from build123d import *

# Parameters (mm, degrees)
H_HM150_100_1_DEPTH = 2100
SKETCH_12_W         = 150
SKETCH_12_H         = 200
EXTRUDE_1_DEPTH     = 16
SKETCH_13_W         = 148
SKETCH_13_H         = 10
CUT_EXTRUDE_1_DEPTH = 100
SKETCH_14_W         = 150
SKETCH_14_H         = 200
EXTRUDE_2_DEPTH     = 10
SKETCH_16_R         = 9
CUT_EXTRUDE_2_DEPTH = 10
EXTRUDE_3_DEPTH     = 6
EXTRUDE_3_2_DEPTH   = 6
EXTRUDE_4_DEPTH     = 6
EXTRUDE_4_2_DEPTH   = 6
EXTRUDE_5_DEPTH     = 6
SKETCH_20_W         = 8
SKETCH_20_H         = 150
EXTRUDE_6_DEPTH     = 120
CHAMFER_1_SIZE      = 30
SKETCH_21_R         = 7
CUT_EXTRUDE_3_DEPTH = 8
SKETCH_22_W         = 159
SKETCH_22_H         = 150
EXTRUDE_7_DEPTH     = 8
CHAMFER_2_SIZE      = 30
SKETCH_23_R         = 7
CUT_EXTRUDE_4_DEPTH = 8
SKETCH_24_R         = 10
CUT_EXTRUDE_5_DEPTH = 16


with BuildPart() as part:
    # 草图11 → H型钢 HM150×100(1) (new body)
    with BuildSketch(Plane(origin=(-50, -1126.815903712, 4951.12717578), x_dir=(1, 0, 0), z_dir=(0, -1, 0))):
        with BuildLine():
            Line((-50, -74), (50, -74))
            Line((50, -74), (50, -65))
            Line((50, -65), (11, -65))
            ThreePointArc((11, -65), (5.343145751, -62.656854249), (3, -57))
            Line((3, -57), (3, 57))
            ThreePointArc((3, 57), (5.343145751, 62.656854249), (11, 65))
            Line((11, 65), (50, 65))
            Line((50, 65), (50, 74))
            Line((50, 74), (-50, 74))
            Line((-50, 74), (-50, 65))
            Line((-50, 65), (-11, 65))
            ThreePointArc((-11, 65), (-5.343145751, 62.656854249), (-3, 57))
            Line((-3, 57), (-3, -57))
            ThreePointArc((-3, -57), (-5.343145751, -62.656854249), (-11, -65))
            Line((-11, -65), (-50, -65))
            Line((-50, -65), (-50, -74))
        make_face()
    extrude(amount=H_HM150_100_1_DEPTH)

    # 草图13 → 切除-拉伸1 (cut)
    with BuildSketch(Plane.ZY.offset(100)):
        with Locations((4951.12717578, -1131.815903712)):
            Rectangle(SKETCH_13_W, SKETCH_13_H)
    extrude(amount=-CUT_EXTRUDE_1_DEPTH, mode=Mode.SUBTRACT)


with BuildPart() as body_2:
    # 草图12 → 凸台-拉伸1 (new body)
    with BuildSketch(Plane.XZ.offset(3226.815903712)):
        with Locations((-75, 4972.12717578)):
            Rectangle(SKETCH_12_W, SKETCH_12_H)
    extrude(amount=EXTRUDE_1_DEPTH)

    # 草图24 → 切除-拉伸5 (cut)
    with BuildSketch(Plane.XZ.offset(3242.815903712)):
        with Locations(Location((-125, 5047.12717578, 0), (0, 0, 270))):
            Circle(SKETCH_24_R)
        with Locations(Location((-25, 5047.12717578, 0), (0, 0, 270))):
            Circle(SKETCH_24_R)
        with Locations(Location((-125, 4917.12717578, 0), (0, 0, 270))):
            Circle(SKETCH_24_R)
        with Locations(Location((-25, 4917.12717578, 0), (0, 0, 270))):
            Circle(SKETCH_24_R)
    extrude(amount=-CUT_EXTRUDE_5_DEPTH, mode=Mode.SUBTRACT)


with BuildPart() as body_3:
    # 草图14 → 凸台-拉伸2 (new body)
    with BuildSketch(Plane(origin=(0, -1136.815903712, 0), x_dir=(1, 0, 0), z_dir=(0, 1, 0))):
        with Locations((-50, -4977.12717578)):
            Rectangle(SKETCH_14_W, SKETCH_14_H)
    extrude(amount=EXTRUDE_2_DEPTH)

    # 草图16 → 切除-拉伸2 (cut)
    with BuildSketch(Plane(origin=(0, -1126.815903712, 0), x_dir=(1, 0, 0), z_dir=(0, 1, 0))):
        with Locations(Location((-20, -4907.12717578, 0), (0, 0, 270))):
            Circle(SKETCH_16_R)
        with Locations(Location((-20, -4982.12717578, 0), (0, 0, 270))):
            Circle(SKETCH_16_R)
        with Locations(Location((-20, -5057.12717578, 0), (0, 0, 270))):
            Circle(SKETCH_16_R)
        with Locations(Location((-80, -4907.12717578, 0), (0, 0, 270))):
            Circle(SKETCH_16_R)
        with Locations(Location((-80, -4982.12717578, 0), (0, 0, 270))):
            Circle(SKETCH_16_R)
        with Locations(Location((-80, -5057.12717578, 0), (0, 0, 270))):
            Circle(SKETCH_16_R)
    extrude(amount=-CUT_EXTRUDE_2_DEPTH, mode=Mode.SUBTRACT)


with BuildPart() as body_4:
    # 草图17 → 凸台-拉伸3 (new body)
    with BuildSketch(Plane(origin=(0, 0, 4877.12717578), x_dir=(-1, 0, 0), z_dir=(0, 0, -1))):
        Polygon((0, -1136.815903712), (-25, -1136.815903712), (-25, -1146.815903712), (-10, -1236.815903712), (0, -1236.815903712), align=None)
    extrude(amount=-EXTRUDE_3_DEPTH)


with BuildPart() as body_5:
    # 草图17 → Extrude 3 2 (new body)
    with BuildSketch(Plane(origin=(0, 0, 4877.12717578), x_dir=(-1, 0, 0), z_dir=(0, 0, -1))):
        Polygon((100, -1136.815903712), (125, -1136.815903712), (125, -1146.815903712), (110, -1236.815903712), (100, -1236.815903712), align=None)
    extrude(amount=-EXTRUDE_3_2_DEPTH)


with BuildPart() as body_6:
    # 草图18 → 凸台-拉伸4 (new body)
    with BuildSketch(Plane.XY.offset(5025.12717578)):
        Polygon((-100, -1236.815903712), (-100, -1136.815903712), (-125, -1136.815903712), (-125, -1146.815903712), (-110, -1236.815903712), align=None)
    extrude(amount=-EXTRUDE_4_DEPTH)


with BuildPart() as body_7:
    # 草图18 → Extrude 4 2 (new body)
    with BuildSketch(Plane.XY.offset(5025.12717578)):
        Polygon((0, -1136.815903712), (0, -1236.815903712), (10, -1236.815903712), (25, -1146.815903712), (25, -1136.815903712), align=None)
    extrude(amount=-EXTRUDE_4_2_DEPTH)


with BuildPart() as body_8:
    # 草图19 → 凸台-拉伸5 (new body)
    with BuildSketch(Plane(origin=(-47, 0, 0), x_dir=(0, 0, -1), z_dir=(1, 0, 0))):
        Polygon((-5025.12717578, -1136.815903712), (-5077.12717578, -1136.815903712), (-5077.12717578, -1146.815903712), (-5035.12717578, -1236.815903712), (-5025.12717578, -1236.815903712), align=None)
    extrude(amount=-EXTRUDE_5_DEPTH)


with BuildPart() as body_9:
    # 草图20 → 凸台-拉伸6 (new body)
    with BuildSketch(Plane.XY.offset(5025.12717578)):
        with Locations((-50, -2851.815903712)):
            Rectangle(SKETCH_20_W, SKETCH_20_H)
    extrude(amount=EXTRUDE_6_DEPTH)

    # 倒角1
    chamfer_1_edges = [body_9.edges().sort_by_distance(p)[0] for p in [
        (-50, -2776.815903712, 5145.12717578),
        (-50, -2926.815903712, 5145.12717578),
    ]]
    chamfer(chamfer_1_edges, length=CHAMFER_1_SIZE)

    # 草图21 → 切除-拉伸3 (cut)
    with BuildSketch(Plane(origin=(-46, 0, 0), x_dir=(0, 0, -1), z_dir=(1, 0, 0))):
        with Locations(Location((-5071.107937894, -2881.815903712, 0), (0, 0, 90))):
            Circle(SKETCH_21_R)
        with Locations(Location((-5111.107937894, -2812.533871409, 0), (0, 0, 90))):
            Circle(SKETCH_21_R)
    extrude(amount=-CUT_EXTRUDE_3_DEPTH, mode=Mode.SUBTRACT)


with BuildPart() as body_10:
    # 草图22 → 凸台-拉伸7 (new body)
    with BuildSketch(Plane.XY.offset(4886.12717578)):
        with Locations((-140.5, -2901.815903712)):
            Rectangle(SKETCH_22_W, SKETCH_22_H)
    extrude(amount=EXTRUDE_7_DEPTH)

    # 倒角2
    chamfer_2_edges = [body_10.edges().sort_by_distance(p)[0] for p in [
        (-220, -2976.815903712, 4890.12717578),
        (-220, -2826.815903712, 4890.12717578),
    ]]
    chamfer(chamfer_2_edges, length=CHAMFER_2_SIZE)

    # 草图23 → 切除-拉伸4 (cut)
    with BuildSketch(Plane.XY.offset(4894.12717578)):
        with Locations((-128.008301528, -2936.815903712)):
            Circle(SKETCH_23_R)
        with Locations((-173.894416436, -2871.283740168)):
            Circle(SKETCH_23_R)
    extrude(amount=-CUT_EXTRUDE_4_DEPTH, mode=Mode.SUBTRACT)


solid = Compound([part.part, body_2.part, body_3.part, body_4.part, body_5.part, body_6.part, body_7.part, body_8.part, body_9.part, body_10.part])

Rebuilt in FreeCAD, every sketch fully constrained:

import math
import FreeCAD as App
import Part
import Sketcher


def edges_at(feature, points):
    """Names of the edges that pass closest to the given points."""
    edges = feature.Shape.Edges
    near = lambda p: min(range(len(edges)), key=lambda i: edges[i].distToShape(Part.Vertex(*p))[0])
    return sorted({f"Edge{near(p) + 1}" for p in points})

doc = App.newDocument("Part")
body = doc.addObject("PartDesign::Body", "Body")

# Sketch on XZ plane
sketch1 = body.newObject("Sketcher::SketchObject", "Sketch")
sketch1.AttachmentSupport = (doc.getObject("XZ_Plane"), [""])
sketch1.MapMode = "FlatFace"
sketch1.AttachmentOffset = App.Placement(App.Vector(0, 0, 1126.815904), App.Rotation())
sketch1.addGeometry([
    Part.LineSegment(App.Vector(-100, 4877.127176, 0), App.Vector(0, 4877.127176, 0)),  # 0
    Part.LineSegment(App.Vector(0, 4877.127176, 0), App.Vector(0, 4886.127176, 0)),  # 1
    Part.LineSegment(App.Vector(0, 4886.127176, 0), App.Vector(-39, 4886.127176, 0)),  # 2
    Part.ArcOfCircle(Part.Circle(App.Vector(-39, 4894.127176, 0), App.Vector(0, 0, 1), 8), math.radians(-180), math.radians(-90)),  # 3
    Part.LineSegment(App.Vector(-47, 4894.127176, 0), App.Vector(-47, 5008.127176, 0)),  # 4
    Part.ArcOfCircle(Part.Circle(App.Vector(-39, 5008.127176, 0), App.Vector(0, 0, 1), 8), math.radians(90), math.radians(180)),  # 5
    Part.LineSegment(App.Vector(-39, 5016.127176, 0), App.Vector(0, 5016.127176, 0)),  # 6
    Part.LineSegment(App.Vector(0, 5016.127176, 0), App.Vector(0, 5025.127176, 0)),  # 7
    Part.LineSegment(App.Vector(0, 5025.127176, 0), App.Vector(-100, 5025.127176, 0)),  # 8
    Part.LineSegment(App.Vector(-100, 5025.127176, 0), App.Vector(-100, 5016.127176, 0)),  # 9
    Part.LineSegment(App.Vector(-100, 5016.127176, 0), App.Vector(-61, 5016.127176, 0)),  # 10
    Part.ArcOfCircle(Part.Circle(App.Vector(-61, 5008.127176, 0), App.Vector(0, 0, 1), 8), math.radians(0), math.radians(90)),  # 11
    Part.LineSegment(App.Vector(-53, 5008.127176, 0), App.Vector(-53, 4894.127176, 0)),  # 12
    Part.ArcOfCircle(Part.Circle(App.Vector(-61, 4894.127176, 0), App.Vector(0, 0, 1), 8), math.radians(-90), math.radians(0)),  # 13
    Part.LineSegment(App.Vector(-61, 4886.127176, 0), App.Vector(-100, 4886.127176, 0)),  # 14
    Part.LineSegment(App.Vector(-100, 4886.127176, 0), App.Vector(-100, 4877.127176, 0)),  # 15
], False)
sketch1.addConstraint([
    Sketcher.Constraint("Coincident", 0, 2, 1, 1),
    Sketcher.Constraint("Coincident", 1, 2, 2, 1),
    Sketcher.Constraint("Tangent", 2, 2, 3, 2),
    Sketcher.Constraint("Tangent", 3, 1, 4, 1),
    Sketcher.Constraint("Tangent", 4, 2, 5, 2),
    Sketcher.Constraint("Tangent", 5, 1, 6, 1),
    Sketcher.Constraint("Coincident", 6, 2, 7, 1),
    Sketcher.Constraint("Coincident", 7, 2, 8, 1),
    Sketcher.Constraint("Coincident", 8, 2, 9, 1),
    Sketcher.Constraint("Coincident", 9, 2, 10, 1),
    Sketcher.Constraint("Tangent", 10, 2, 11, 2),
    Sketcher.Constraint("Tangent", 11, 1, 12, 1),
    Sketcher.Constraint("Tangent", 12, 2, 13, 2),
    Sketcher.Constraint("Tangent", 13, 1, 14, 1),
    Sketcher.Constraint("Coincident", 14, 2, 15, 1),
    Sketcher.Constraint("Coincident", 15, 2, 0, 1),
    Sketcher.Constraint("Horizontal", 0),
    Sketcher.Constraint("Vertical", 1),
    Sketcher.Constraint("Horizontal", 2),
    Sketcher.Constraint("Vertical", 4),
    Sketcher.Constraint("Horizontal", 6),
    Sketcher.Constraint("Vertical", 7),
    Sketcher.Constraint("Horizontal", 8),
    Sketcher.Constraint("Vertical", 9),
    Sketcher.Constraint("Horizontal", 10),
    Sketcher.Constraint("Vertical", 12),
    Sketcher.Constraint("Horizontal", 14),
    Sketcher.Constraint("Vertical", 15),
    Sketcher.Constraint("Equal", 3, 5),
    Sketcher.Constraint("Equal", 5, 11),
    Sketcher.Constraint("Equal", 11, 13),
    Sketcher.Constraint("PointOnObject", 0, 2, -2),
    Sketcher.Constraint("PointOnObject", 6, 2, -2),
    Sketcher.Constraint("Horizontal", 5, 3, 11, 3),
    Sketcher.Constraint("Horizontal", 3, 3, 13, 3),
    Sketcher.Constraint("Vertical", 9, 2, 14, 2),
    Sketcher.Constraint("Equal", 6, 10),
    Sketcher.Constraint("Equal", 1, 7),
    Sketcher.Constraint("Radius", 3, 8.0),
    Sketcher.Constraint("DistanceX", 0, 1, 0, 2, 100.0),
    Sketcher.Constraint("DistanceX", 2, 2, 2, 1, 39.0),
    Sketcher.Constraint("DistanceY", 1, 1, 1, 2, 9.0),
    Sketcher.Constraint("DistanceY", 4, 1, 4, 2, 114.0),
    Sketcher.Constraint("DistanceY", -1, 1, 3, 3, 4894.127176),
])
pad1 = body.newObject("PartDesign::Pad", "Pad")
pad1.Profile = sketch1
pad1.Length = 2100

# Sketch on YZ plane
sketch2 = body.newObject("Sketcher::SketchObject", "Sketch001")
sketch2.AttachmentSupport = (doc.getObject("YZ_Plane"), [""])
sketch2.MapMode = "FlatFace"
sketch2.AttachmentOffset = App.Placement(App.Vector(0, 0, -100), App.Rotation())
sketch2.addGeometry([
    Part.LineSegment(App.Vector(-1126.815904, 4877.127176, 0), App.Vector(-1136.815904, 4877.127176, 0)),
    Part.LineSegment(App.Vector(-1136.815904, 4877.127176, 0), App.Vector(-1136.815904, 5025.127176, 0)),
    Part.LineSegment(App.Vector(-1136.815904, 5025.127176, 0), App.Vector(-1126.815904, 5025.127176, 0)),
    Part.LineSegment(App.Vector(-1126.815904, 5025.127176, 0), App.Vector(-1126.815904, 4877.127176, 0)),
], False)
sketch2.addConstraint([
    Sketcher.Constraint("Coincident", 0, 2, 1, 1),
    Sketcher.Constraint("Coincident", 1, 2, 2, 1),
    Sketcher.Constraint("Coincident", 2, 2, 3, 1),
    Sketcher.Constraint("Coincident", 3, 2, 0, 1),
    Sketcher.Constraint("Horizontal", 0),
    Sketcher.Constraint("Vertical", 1),
    Sketcher.Constraint("Horizontal", 2),
    Sketcher.Constraint("Vertical", 3),
    Sketcher.Constraint("DistanceX", 0, 2, 0, 1, 10.0),
    Sketcher.Constraint("DistanceY", 1, 1, 1, 2, 148.0),
    Sketcher.Constraint("DistanceX", 0, 2, -1, 1, 1136.815904),
    Sketcher.Constraint("DistanceY", -1, 1, 0, 2, 4877.127176),
])
pocket1 = body.newObject("PartDesign::Pocket", "Pocket")
pocket1.Profile = sketch2
pocket1.Length = 100
pocket1.Reversed = True
body2 = doc.addObject("PartDesign::Body", "Body001")

# Sketch on XZ plane
sketch3 = body2.newObject("Sketcher::SketchObject", "Sketch002")
sketch3.AttachmentSupport = (doc.getObject("XZ_Plane001"), [""])
sketch3.MapMode = "FlatFace"
sketch3.AttachmentOffset = App.Placement(App.Vector(0, 0, 3226.815904), App.Rotation())
sketch3.addGeometry([
    Part.LineSegment(App.Vector(-150, 5072.127176, 0), App.Vector(-150, 4872.127176, 0)),
    Part.LineSegment(App.Vector(-150, 4872.127176, 0), App.Vector(0, 4872.127176, 0)),
    Part.LineSegment(App.Vector(0, 4872.127176, 0), App.Vector(0, 5072.127176, 0)),
    Part.LineSegment(App.Vector(0, 5072.127176, 0), App.Vector(-150, 5072.127176, 0)),
], False)
sketch3.addConstraint([
    Sketcher.Constraint("Coincident", 0, 2, 1, 1),
    Sketcher.Constraint("Coincident", 1, 2, 2, 1),
    Sketcher.Constraint("Coincident", 2, 2, 3, 1),
    Sketcher.Constraint("Coincident", 3, 2, 0, 1),
    Sketcher.Constraint("Vertical", 0),
    Sketcher.Constraint("Horizontal", 1),
    Sketcher.Constraint("Vertical", 2),
    Sketcher.Constraint("Horizontal", 3),
    Sketcher.Constraint("PointOnObject", 1, 2, -2),
    Sketcher.Constraint("DistanceX", 1, 1, 1, 2, 150.0),
    Sketcher.Constraint("DistanceY", 0, 2, 0, 1, 200.0),
    Sketcher.Constraint("DistanceY", -1, 1, 0, 2, 4872.127176),
])
pad2 = body2.newObject("PartDesign::Pad", "Pad001")
pad2.Profile = sketch3
pad2.Length = 16

# Sketch on XZ plane
sketch4 = body2.newObject("Sketcher::SketchObject", "Sketch003")
sketch4.AttachmentSupport = (doc.getObject("XZ_Plane001"), [""])
sketch4.MapMode = "FlatFace"
sketch4.AttachmentOffset = App.Placement(App.Vector(0, 0, 3242.815904), App.Rotation())
sketch4.addGeometry([
    Part.Circle(App.Vector(-125, 5047.127176, 0), App.Vector(0, 0, 1), 10),
    Part.Circle(App.Vector(-25, 5047.127176, 0), App.Vector(0, 0, 1), 10),
    Part.Circle(App.Vector(-125, 4917.127176, 0), App.Vector(0, 0, 1), 10),
    Part.Circle(App.Vector(-25, 4917.127176, 0), App.Vector(0, 0, 1), 10),
], False)
sketch4.addConstraint([
    Sketcher.Constraint("Equal", 0, 1),
    Sketcher.Constraint("Equal", 1, 2),
    Sketcher.Constraint("Equal", 2, 3),
    Sketcher.Constraint("Horizontal", 0, 3, 1, 3),
    Sketcher.Constraint("Horizontal", 2, 3, 3, 3),
    Sketcher.Constraint("Vertical", 0, 3, 2, 3),
    Sketcher.Constraint("Vertical", 1, 3, 3, 3),
    Sketcher.Constraint("Diameter", 0, 20.0),
    Sketcher.Constraint("DistanceX", 0, 3, -1, 1, 125.0),
    Sketcher.Constraint("DistanceX", 1, 3, -1, 1, 25.0),
    Sketcher.Constraint("DistanceY", 2, 3, 0, 3, 130.0),
    Sketcher.Constraint("DistanceY", -1, 1, 0, 3, 5047.127176),
])
pocket2 = body2.newObject("PartDesign::Pocket", "Pocket001")
pocket2.Profile = sketch4
pocket2.Length = 16
body3 = doc.addObject("PartDesign::Body", "Body002")

# Sketch on XZ plane
sketch5 = body3.newObject("Sketcher::SketchObject", "Sketch004")
sketch5.AttachmentSupport = (doc.getObject("XZ_Plane002"), [""])
sketch5.MapMode = "FlatFace"
sketch5.AttachmentOffset = App.Placement(App.Vector(0, 0, 1136.815904), App.Rotation())
sketch5.addGeometry([
    Part.LineSegment(App.Vector(-125, 4877.127176, 0), App.Vector(-125, 5077.127176, 0)),
    Part.LineSegment(App.Vector(-125, 5077.127176, 0), App.Vector(25, 5077.127176, 0)),
    Part.LineSegment(App.Vector(25, 5077.127176, 0), App.Vector(25, 4877.127176, 0)),
    Part.LineSegment(App.Vector(25, 4877.127176, 0), App.Vector(-125, 4877.127176, 0)),
], False)
sketch5.addConstraint([
    Sketcher.Constraint("Coincident", 0, 2, 1, 1),
    Sketcher.Constraint("Coincident", 1, 2, 2, 1),
    Sketcher.Constraint("Coincident", 2, 2, 3, 1),
    Sketcher.Constraint("Coincident", 3, 2, 0, 1),
    Sketcher.Constraint("Vertical", 0),
    Sketcher.Constraint("Horizontal", 1),
    Sketcher.Constraint("Vertical", 2),
    Sketcher.Constraint("Horizontal", 3),
    Sketcher.Constraint("DistanceX", 1, 1, 1, 2, 150.0),
    Sketcher.Constraint("DistanceY", 0, 1, 0, 2, 200.0),
    Sketcher.Constraint("DistanceX", 0, 2, -1, 1, 125.0),
    Sketcher.Constraint("DistanceY", -1, 1, 0, 2, 5077.127176),
])
pad3 = body3.newObject("PartDesign::Pad", "Pad002")
pad3.Profile = sketch5
pad3.Length = 10
pad3.Reversed = True

# Sketch on XZ plane
sketch6 = body3.newObject("Sketcher::SketchObject", "Sketch005")
sketch6.AttachmentSupport = (doc.getObject("XZ_Plane002"), [""])
sketch6.MapMode = "FlatFace"
sketch6.AttachmentOffset = App.Placement(App.Vector(0, 0, 1126.815904), App.Rotation())
sketch6.addGeometry([
    Part.Circle(App.Vector(-20, 4907.127176, 0), App.Vector(0, 0, 1), 9),  # 0
    Part.Circle(App.Vector(-20, 4982.127176, 0), App.Vector(0, 0, 1), 9),  # 1
    Part.Circle(App.Vector(-20, 5057.127176, 0), App.Vector(0, 0, 1), 9),  # 2
    Part.Circle(App.Vector(-80, 4907.127176, 0), App.Vector(0, 0, 1), 9),  # 3
    Part.Circle(App.Vector(-80, 4982.127176, 0), App.Vector(0, 0, 1), 9),  # 4
    Part.Circle(App.Vector(-80, 5057.127176, 0), App.Vector(0, 0, 1), 9),  # 5
], False)
sketch6.addConstraint([
    Sketcher.Constraint("Equal", 0, 1),
    Sketcher.Constraint("Equal", 1, 2),
    Sketcher.Constraint("Equal", 2, 3),
    Sketcher.Constraint("Equal", 3, 4),
    Sketcher.Constraint("Equal", 4, 5),
    Sketcher.Constraint("Horizontal", 0, 3, 3, 3),
    Sketcher.Constraint("Horizontal", 1, 3, 4, 3),
    Sketcher.Constraint("Horizontal", 2, 3, 5, 3),
    Sketcher.Constraint("Vertical", 0, 3, 1, 3),
    Sketcher.Constraint("Vertical", 1, 3, 2, 3),
    Sketcher.Constraint("Vertical", 3, 3, 4, 3),
    Sketcher.Constraint("Vertical", 4, 3, 5, 3),
    Sketcher.Constraint("Diameter", 0, 18.0),
    Sketcher.Constraint("DistanceX", 0, 3, -1, 1, 20.0),
    Sketcher.Constraint("DistanceX", 3, 3, -1, 1, 80.0),
    Sketcher.Constraint("DistanceY", 0, 3, 1, 3, 75.0),
    Sketcher.Constraint("DistanceY", 1, 3, 2, 3, 75.0),
    Sketcher.Constraint("DistanceY", -1, 1, 0, 3, 4907.127176),
])
pocket3 = body3.newObject("PartDesign::Pocket", "Pocket002")
pocket3.Profile = sketch6
pocket3.Length = 10
pocket3.Reversed = True
body4 = doc.addObject("PartDesign::Body", "Body003")

# Sketch on XY plane
sketch7 = body4.newObject("Sketcher::SketchObject", "Sketch006")
sketch7.AttachmentSupport = (doc.getObject("XY_Plane003"), [""])
sketch7.MapMode = "FlatFace"
sketch7.AttachmentOffset = App.Placement(App.Vector(0, 0, 4877.127176), App.Rotation())
sketch7.addGeometry([
    Part.LineSegment(App.Vector(0, -1136.815904, 0), App.Vector(25, -1136.815904, 0)),  # 0
    Part.LineSegment(App.Vector(25, -1136.815904, 0), App.Vector(25, -1146.815904, 0)),  # 1
    Part.LineSegment(App.Vector(25, -1146.815904, 0), App.Vector(10, -1236.815904, 0)),  # 2
    Part.LineSegment(App.Vector(10, -1236.815904, 0), App.Vector(0, -1236.815904, 0)),  # 3
    Part.LineSegment(App.Vector(0, -1236.815904, 0), App.Vector(0, -1136.815904, 0)),  # 4
], False)
sketch7.addConstraint([
    Sketcher.Constraint("Coincident", 0, 2, 1, 1),
    Sketcher.Constraint("Coincident", 1, 2, 2, 1),
    Sketcher.Constraint("Coincident", 2, 2, 3, 1),
    Sketcher.Constraint("Coincident", 3, 2, 4, 1),
    Sketcher.Constraint("Coincident", 4, 2, 0, 1),
    Sketcher.Constraint("Horizontal", 0),
    Sketcher.Constraint("Vertical", 1),
    Sketcher.Constraint("Horizontal", 3),
    Sketcher.Constraint("Vertical", 4),
    Sketcher.Constraint("PointOnObject", 3, 2, -2),
    Sketcher.Constraint("Equal", 3, 1),
    Sketcher.Constraint("DistanceX", 0, 1, 0, 2, 25.0),
    Sketcher.Constraint("DistanceX", 3, 2, 3, 1, 10.0),
    Sketcher.Constraint("DistanceY", 4, 1, 4, 2, 100.0),
    Sketcher.Constraint("DistanceY", 0, 2, -1, 1, 1136.815904),
])
pad4 = body4.newObject("PartDesign::Pad", "Pad003")
pad4.Profile = sketch7
pad4.Length = 6
body5 = doc.addObject("PartDesign::Body", "Body004")

# Sketch on XY plane
sketch8 = body5.newObject("Sketcher::SketchObject", "Sketch007")
sketch8.AttachmentSupport = (doc.getObject("XY_Plane004"), [""])
sketch8.MapMode = "FlatFace"
sketch8.AttachmentOffset = App.Placement(App.Vector(0, 0, 4877.127176), App.Rotation())
sketch8.addGeometry([
    Part.LineSegment(App.Vector(-125, -1136.815904, 0), App.Vector(-100, -1136.815904, 0)),  # 0
    Part.LineSegment(App.Vector(-100, -1136.815904, 0), App.Vector(-100, -1236.815904, 0)),  # 1
    Part.LineSegment(App.Vector(-100, -1236.815904, 0), App.Vector(-110, -1236.815904, 0)),  # 2
    Part.LineSegment(App.Vector(-110, -1236.815904, 0), App.Vector(-125, -1146.815904, 0)),  # 3
    Part.LineSegment(App.Vector(-125, -1146.815904, 0), App.Vector(-125, -1136.815904, 0)),  # 4
], False)
sketch8.addConstraint([
    Sketcher.Constraint("Coincident", 0, 2, 1, 1),
    Sketcher.Constraint("Coincident", 1, 2, 2, 1),
    Sketcher.Constraint("Coincident", 2, 2, 3, 1),
    Sketcher.Constraint("Coincident", 3, 2, 4, 1),
    Sketcher.Constraint("Coincident", 4, 2, 0, 1),
    Sketcher.Constraint("Horizontal", 0),
    Sketcher.Constraint("Vertical", 1),
    Sketcher.Constraint("Horizontal", 2),
    Sketcher.Constraint("Vertical", 4),
    Sketcher.Constraint("Equal", 2, 4),
    Sketcher.Constraint("DistanceX", 0, 1, 0, 2, 25.0),
    Sketcher.Constraint("DistanceX", 2, 2, 2, 1, 10.0),
    Sketcher.Constraint("DistanceY", 1, 2, 1, 1, 100.0),
    Sketcher.Constraint("DistanceX", 0, 2, -1, 1, 100.0),
    Sketcher.Constraint("DistanceY", 0, 2, -1, 1, 1136.815904),
])
pad5 = body5.newObject("PartDesign::Pad", "Pad004")
pad5.Profile = sketch8
pad5.Length = 6
body6 = doc.addObject("PartDesign::Body", "Body005")

# Sketch on XY plane
sketch9 = body6.newObject("Sketcher::SketchObject", "Sketch008")
sketch9.AttachmentSupport = (doc.getObject("XY_Plane005"), [""])
sketch9.MapMode = "FlatFace"
sketch9.AttachmentOffset = App.Placement(App.Vector(0, 0, 5025.127176), App.Rotation())
sketch9.addGeometry([
    Part.LineSegment(App.Vector(-100, -1236.815904, 0), App.Vector(-100, -1136.815904, 0)),  # 0
    Part.LineSegment(App.Vector(-100, -1136.815904, 0), App.Vector(-125, -1136.815904, 0)),  # 1
    Part.LineSegment(App.Vector(-125, -1136.815904, 0), App.Vector(-125, -1146.815904, 0)),  # 2
    Part.LineSegment(App.Vector(-125, -1146.815904, 0), App.Vector(-110, -1236.815904, 0)),  # 3
    Part.LineSegment(App.Vector(-110, -1236.815904, 0), App.Vector(-100, -1236.815904, 0)),  # 4
], False)
sketch9.addConstraint([
    Sketcher.Constraint("Coincident", 0, 2, 1, 1),
    Sketcher.Constraint("Coincident", 1, 2, 2, 1),
    Sketcher.Constraint("Coincident", 2, 2, 3, 1),
    Sketcher.Constraint("Coincident", 3, 2, 4, 1),
    Sketcher.Constraint("Coincident", 4, 2, 0, 1),
    Sketcher.Constraint("Vertical", 0),
    Sketcher.Constraint("Horizontal", 1),
    Sketcher.Constraint("Vertical", 2),
    Sketcher.Constraint("Horizontal", 4),
    Sketcher.Constraint("Equal", 4, 2),
    Sketcher.Constraint("DistanceX", 1, 2, 1, 1, 25.0),
    Sketcher.Constraint("DistanceX", 4, 1, 4, 2, 10.0),
    Sketcher.Constraint("DistanceY", 0, 1, 0, 2, 100.0),
    Sketcher.Constraint("DistanceX", 0, 2, -1, 1, 100.0),
    Sketcher.Constraint("DistanceY", 0, 2, -1, 1, 1136.815904),
])
pad6 = body6.newObject("PartDesign::Pad", "Pad005")
pad6.Profile = sketch9
pad6.Length = 6
pad6.Reversed = True
body7 = doc.addObject("PartDesign::Body", "Body006")

# Sketch on XY plane
sketch10 = body7.newObject("Sketcher::SketchObject", "Sketch009")
sketch10.AttachmentSupport = (doc.getObject("XY_Plane006"), [""])
sketch10.MapMode = "FlatFace"
sketch10.AttachmentOffset = App.Placement(App.Vector(0, 0, 5025.127176), App.Rotation())
sketch10.addGeometry([
    Part.LineSegment(App.Vector(0, -1136.815904, 0), App.Vector(0, -1236.815904, 0)),  # 0
    Part.LineSegment(App.Vector(0, -1236.815904, 0), App.Vector(10, -1236.815904, 0)),  # 1
    Part.LineSegment(App.Vector(10, -1236.815904, 0), App.Vector(25, -1146.815904, 0)),  # 2
    Part.LineSegment(App.Vector(25, -1146.815904, 0), App.Vector(25, -1136.815904, 0)),  # 3
    Part.LineSegment(App.Vector(25, -1136.815904, 0), App.Vector(0, -1136.815904, 0)),  # 4
], False)
sketch10.addConstraint([
    Sketcher.Constraint("Coincident", 0, 2, 1, 1),
    Sketcher.Constraint("Coincident", 1, 2, 2, 1),
    Sketcher.Constraint("Coincident", 2, 2, 3, 1),
    Sketcher.Constraint("Coincident", 3, 2, 4, 1),
    Sketcher.Constraint("Coincident", 4, 2, 0, 1),
    Sketcher.Constraint("Vertical", 0),
    Sketcher.Constraint("Horizontal", 1),
    Sketcher.Constraint("Vertical", 3),
    Sketcher.Constraint("Horizontal", 4),
    Sketcher.Constraint("PointOnObject", 0, 2, -2),
    Sketcher.Constraint("Equal", 1, 3),
    Sketcher.Constraint("DistanceX", 1, 1, 1, 2, 10.0),
    Sketcher.Constraint("DistanceX", 4, 2, 4, 1, 25.0),
    Sketcher.Constraint("DistanceY", 0, 2, 0, 1, 100.0),
    Sketcher.Constraint("DistanceY", 0, 2, -1, 1, 1236.815904),
])
pad7 = body7.newObject("PartDesign::Pad", "Pad006")
pad7.Profile = sketch10
pad7.Length = 6
pad7.Reversed = True
body8 = doc.addObject("PartDesign::Body", "Body007")

# Sketch on YZ plane
sketch11 = body8.newObject("Sketcher::SketchObject", "Sketch010")
sketch11.AttachmentSupport = (doc.getObject("YZ_Plane007"), [""])
sketch11.MapMode = "FlatFace"
sketch11.AttachmentOffset = App.Placement(App.Vector(0, 0, -47), App.Rotation())
sketch11.addGeometry([
    Part.LineSegment(App.Vector(-1136.815904, 5025.127176, 0), App.Vector(-1136.815904, 5077.127176, 0)),  # 0
    Part.LineSegment(App.Vector(-1136.815904, 5077.127176, 0), App.Vector(-1146.815904, 5077.127176, 0)),  # 1
    Part.LineSegment(App.Vector(-1146.815904, 5077.127176, 0), App.Vector(-1236.815904, 5035.127176, 0)),  # 2
    Part.LineSegment(App.Vector(-1236.815904, 5035.127176, 0), App.Vector(-1236.815904, 5025.127176, 0)),  # 3
    Part.LineSegment(App.Vector(-1236.815904, 5025.127176, 0), App.Vector(-1136.815904, 5025.127176, 0)),  # 4
], False)
sketch11.addConstraint([
    Sketcher.Constraint("Coincident", 0, 2, 1, 1),
    Sketcher.Constraint("Coincident", 1, 2, 2, 1),
    Sketcher.Constraint("Coincident", 2, 2, 3, 1),
    Sketcher.Constraint("Coincident", 3, 2, 4, 1),
    Sketcher.Constraint("Coincident", 4, 2, 0, 1),
    Sketcher.Constraint("Vertical", 0),
    Sketcher.Constraint("Horizontal", 1),
    Sketcher.Constraint("Vertical", 3),
    Sketcher.Constraint("Horizontal", 4),
    Sketcher.Constraint("Equal", 1, 3),
    Sketcher.Constraint("DistanceX", 1, 2, 1, 1, 10.0),
    Sketcher.Constraint("DistanceX", 4, 1, 4, 2, 100.0),
    Sketcher.Constraint("DistanceY", 0, 1, 0, 2, 52.0),
    Sketcher.Constraint("DistanceX", 0, 2, -1, 1, 1136.815904),
    Sketcher.Constraint("DistanceY", -1, 1, 0, 2, 5077.127176),
])
pad8 = body8.newObject("PartDesign::Pad", "Pad007")
pad8.Profile = sketch11
pad8.Length = 6
pad8.Reversed = True
body9 = doc.addObject("PartDesign::Body", "Body008")

# Sketch on XY plane
sketch12 = body9.newObject("Sketcher::SketchObject", "Sketch011")
sketch12.AttachmentSupport = (doc.getObject("XY_Plane008"), [""])
sketch12.MapMode = "FlatFace"
sketch12.AttachmentOffset = App.Placement(App.Vector(0, 0, 5025.127176), App.Rotation())
sketch12.addGeometry([
    Part.LineSegment(App.Vector(-54, -2776.815904, 0), App.Vector(-54, -2926.815904, 0)),
    Part.LineSegment(App.Vector(-54, -2926.815904, 0), App.Vector(-46, -2926.815904, 0)),
    Part.LineSegment(App.Vector(-46, -2926.815904, 0), App.Vector(-46, -2776.815904, 0)),
    Part.LineSegment(App.Vector(-46, -2776.815904, 0), App.Vector(-54, -2776.815904, 0)),
], False)
sketch12.addConstraint([
    Sketcher.Constraint("Coincident", 0, 2, 1, 1),
    Sketcher.Constraint("Coincident", 1, 2, 2, 1),
    Sketcher.Constraint("Coincident", 2, 2, 3, 1),
    Sketcher.Constraint("Coincident", 3, 2, 0, 1),
    Sketcher.Constraint("Vertical", 0),
    Sketcher.Constraint("Horizontal", 1),
    Sketcher.Constraint("Vertical", 2),
    Sketcher.Constraint("Horizontal", 3),
    Sketcher.Constraint("DistanceX", 1, 1, 1, 2, 8.0),
    Sketcher.Constraint("DistanceY", 0, 2, 0, 1, 150.0),
    Sketcher.Constraint("DistanceX", 0, 2, -1, 1, 54.0),
    Sketcher.Constraint("DistanceY", 0, 2, -1, 1, 2926.815904),
])
pad9 = body9.newObject("PartDesign::Pad", "Pad008")
pad9.Profile = sketch12
pad9.Length = 120
doc.recompute()

chamfer = body9.newObject("PartDesign::Chamfer", "Chamfer")
chamfer.Base = (pad9, edges_at(pad9, [(-50, -2776.816, 5145.127), (-50, -2926.816, 5145.127)]))
chamfer.Size = 30

# Sketch on YZ plane
sketch13 = body9.newObject("Sketcher::SketchObject", "Sketch012")
sketch13.AttachmentSupport = (doc.getObject("YZ_Plane008"), [""])
sketch13.MapMode = "FlatFace"
sketch13.AttachmentOffset = App.Placement(App.Vector(0, 0, -46), App.Rotation())
sketch13.addGeometry([
    Part.Circle(App.Vector(-2881.815904, 5071.107938, 0), App.Vector(0, 0, 1), 7),
    Part.Circle(App.Vector(-2812.533871, 5111.107938, 0), App.Vector(0, 0, 1), 7),
], False)
sketch13.addConstraint([
    Sketcher.Constraint("Equal", 0, 1),
    Sketcher.Constraint("Diameter", 0, 14.0),
    Sketcher.Constraint("DistanceY", 0, 3, 1, 3, 40.0),
    Sketcher.Constraint("DistanceX", 1, 3, -1, 1, 2812.533871),
    Sketcher.Constraint("DistanceX", 0, 3, -1, 1, 2881.815904),
    Sketcher.Constraint("DistanceY", -1, 1, 0, 3, 5071.107938),
])
pocket4 = body9.newObject("PartDesign::Pocket", "Pocket003")
pocket4.Profile = sketch13
pocket4.Length = 8
body10 = doc.addObject("PartDesign::Body", "Body009")

# Sketch on XY plane
sketch14 = body10.newObject("Sketcher::SketchObject", "Sketch013")
sketch14.AttachmentSupport = (doc.getObject("XY_Plane009"), [""])
sketch14.MapMode = "FlatFace"
sketch14.AttachmentOffset = App.Placement(App.Vector(0, 0, 4886.127176), App.Rotation())
sketch14.addGeometry([
    Part.LineSegment(App.Vector(-220, -2826.815904, 0), App.Vector(-220, -2976.815904, 0)),
    Part.LineSegment(App.Vector(-220, -2976.815904, 0), App.Vector(-61, -2976.815904, 0)),
    Part.LineSegment(App.Vector(-61, -2976.815904, 0), App.Vector(-61, -2826.815904, 0)),
    Part.LineSegment(App.Vector(-61, -2826.815904, 0), App.Vector(-220, -2826.815904, 0)),
], False)
sketch14.addConstraint([
    Sketcher.Constraint("Coincident", 0, 2, 1, 1),
    Sketcher.Constraint("Coincident", 1, 2, 2, 1),
    Sketcher.Constraint("Coincident", 2, 2, 3, 1),
    Sketcher.Constraint("Coincident", 3, 2, 0, 1),
    Sketcher.Constraint("Vertical", 0),
    Sketcher.Constraint("Horizontal", 1),
    Sketcher.Constraint("Vertical", 2),
    Sketcher.Constraint("Horizontal", 3),
    Sketcher.Constraint("DistanceX", 1, 1, 1, 2, 159.0),
    Sketcher.Constraint("DistanceY", 0, 2, 0, 1, 150.0),
    Sketcher.Constraint("DistanceX", 0, 2, -1, 1, 220.0),
    Sketcher.Constraint("DistanceY", 0, 2, -1, 1, 2976.815904),
])
pad10 = body10.newObject("PartDesign::Pad", "Pad009")
pad10.Profile = sketch14
pad10.Length = 8
doc.recompute()

chamfer2 = body10.newObject("PartDesign::Chamfer", "Chamfer001")
chamfer2.Base = (pad10, edges_at(pad10, [(-220, -2976.816, 4890.127), (-220, -2826.816, 4890.127)]))
chamfer2.Size = 30

# Sketch on XY plane
sketch15 = body10.newObject("Sketcher::SketchObject", "Sketch014")
sketch15.AttachmentSupport = (doc.getObject("XY_Plane009"), [""])
sketch15.MapMode = "FlatFace"
sketch15.AttachmentOffset = App.Placement(App.Vector(0, 0, 4894.127176), App.Rotation())
sketch15.addGeometry([
    Part.Circle(App.Vector(-128.008302, -2936.815904, 0), App.Vector(0, 0, 1), 7),
    Part.Circle(App.Vector(-173.894416, -2871.28374, 0), App.Vector(0, 0, 1), 7),
], False)
sketch15.addConstraint([
    Sketcher.Constraint("Equal", 0, 1),
    Sketcher.Constraint("Diameter", 0, 14.0),
    Sketcher.Constraint("DistanceX", 0, 3, -1, 1, 128.008302),
    Sketcher.Constraint("DistanceY", 1, 3, -1, 1, 2871.28374),
    Sketcher.Constraint("DistanceY", 0, 3, -1, 1, 2936.815904),
    Sketcher.Constraint("DistanceX", 1, 3, -1, 1, 173.894416),
])
pocket5 = body10.newObject("PartDesign::Pocket", "Pocket004")
pocket5.Profile = sketch15
pocket5.Length = 8

doc.recompute()
